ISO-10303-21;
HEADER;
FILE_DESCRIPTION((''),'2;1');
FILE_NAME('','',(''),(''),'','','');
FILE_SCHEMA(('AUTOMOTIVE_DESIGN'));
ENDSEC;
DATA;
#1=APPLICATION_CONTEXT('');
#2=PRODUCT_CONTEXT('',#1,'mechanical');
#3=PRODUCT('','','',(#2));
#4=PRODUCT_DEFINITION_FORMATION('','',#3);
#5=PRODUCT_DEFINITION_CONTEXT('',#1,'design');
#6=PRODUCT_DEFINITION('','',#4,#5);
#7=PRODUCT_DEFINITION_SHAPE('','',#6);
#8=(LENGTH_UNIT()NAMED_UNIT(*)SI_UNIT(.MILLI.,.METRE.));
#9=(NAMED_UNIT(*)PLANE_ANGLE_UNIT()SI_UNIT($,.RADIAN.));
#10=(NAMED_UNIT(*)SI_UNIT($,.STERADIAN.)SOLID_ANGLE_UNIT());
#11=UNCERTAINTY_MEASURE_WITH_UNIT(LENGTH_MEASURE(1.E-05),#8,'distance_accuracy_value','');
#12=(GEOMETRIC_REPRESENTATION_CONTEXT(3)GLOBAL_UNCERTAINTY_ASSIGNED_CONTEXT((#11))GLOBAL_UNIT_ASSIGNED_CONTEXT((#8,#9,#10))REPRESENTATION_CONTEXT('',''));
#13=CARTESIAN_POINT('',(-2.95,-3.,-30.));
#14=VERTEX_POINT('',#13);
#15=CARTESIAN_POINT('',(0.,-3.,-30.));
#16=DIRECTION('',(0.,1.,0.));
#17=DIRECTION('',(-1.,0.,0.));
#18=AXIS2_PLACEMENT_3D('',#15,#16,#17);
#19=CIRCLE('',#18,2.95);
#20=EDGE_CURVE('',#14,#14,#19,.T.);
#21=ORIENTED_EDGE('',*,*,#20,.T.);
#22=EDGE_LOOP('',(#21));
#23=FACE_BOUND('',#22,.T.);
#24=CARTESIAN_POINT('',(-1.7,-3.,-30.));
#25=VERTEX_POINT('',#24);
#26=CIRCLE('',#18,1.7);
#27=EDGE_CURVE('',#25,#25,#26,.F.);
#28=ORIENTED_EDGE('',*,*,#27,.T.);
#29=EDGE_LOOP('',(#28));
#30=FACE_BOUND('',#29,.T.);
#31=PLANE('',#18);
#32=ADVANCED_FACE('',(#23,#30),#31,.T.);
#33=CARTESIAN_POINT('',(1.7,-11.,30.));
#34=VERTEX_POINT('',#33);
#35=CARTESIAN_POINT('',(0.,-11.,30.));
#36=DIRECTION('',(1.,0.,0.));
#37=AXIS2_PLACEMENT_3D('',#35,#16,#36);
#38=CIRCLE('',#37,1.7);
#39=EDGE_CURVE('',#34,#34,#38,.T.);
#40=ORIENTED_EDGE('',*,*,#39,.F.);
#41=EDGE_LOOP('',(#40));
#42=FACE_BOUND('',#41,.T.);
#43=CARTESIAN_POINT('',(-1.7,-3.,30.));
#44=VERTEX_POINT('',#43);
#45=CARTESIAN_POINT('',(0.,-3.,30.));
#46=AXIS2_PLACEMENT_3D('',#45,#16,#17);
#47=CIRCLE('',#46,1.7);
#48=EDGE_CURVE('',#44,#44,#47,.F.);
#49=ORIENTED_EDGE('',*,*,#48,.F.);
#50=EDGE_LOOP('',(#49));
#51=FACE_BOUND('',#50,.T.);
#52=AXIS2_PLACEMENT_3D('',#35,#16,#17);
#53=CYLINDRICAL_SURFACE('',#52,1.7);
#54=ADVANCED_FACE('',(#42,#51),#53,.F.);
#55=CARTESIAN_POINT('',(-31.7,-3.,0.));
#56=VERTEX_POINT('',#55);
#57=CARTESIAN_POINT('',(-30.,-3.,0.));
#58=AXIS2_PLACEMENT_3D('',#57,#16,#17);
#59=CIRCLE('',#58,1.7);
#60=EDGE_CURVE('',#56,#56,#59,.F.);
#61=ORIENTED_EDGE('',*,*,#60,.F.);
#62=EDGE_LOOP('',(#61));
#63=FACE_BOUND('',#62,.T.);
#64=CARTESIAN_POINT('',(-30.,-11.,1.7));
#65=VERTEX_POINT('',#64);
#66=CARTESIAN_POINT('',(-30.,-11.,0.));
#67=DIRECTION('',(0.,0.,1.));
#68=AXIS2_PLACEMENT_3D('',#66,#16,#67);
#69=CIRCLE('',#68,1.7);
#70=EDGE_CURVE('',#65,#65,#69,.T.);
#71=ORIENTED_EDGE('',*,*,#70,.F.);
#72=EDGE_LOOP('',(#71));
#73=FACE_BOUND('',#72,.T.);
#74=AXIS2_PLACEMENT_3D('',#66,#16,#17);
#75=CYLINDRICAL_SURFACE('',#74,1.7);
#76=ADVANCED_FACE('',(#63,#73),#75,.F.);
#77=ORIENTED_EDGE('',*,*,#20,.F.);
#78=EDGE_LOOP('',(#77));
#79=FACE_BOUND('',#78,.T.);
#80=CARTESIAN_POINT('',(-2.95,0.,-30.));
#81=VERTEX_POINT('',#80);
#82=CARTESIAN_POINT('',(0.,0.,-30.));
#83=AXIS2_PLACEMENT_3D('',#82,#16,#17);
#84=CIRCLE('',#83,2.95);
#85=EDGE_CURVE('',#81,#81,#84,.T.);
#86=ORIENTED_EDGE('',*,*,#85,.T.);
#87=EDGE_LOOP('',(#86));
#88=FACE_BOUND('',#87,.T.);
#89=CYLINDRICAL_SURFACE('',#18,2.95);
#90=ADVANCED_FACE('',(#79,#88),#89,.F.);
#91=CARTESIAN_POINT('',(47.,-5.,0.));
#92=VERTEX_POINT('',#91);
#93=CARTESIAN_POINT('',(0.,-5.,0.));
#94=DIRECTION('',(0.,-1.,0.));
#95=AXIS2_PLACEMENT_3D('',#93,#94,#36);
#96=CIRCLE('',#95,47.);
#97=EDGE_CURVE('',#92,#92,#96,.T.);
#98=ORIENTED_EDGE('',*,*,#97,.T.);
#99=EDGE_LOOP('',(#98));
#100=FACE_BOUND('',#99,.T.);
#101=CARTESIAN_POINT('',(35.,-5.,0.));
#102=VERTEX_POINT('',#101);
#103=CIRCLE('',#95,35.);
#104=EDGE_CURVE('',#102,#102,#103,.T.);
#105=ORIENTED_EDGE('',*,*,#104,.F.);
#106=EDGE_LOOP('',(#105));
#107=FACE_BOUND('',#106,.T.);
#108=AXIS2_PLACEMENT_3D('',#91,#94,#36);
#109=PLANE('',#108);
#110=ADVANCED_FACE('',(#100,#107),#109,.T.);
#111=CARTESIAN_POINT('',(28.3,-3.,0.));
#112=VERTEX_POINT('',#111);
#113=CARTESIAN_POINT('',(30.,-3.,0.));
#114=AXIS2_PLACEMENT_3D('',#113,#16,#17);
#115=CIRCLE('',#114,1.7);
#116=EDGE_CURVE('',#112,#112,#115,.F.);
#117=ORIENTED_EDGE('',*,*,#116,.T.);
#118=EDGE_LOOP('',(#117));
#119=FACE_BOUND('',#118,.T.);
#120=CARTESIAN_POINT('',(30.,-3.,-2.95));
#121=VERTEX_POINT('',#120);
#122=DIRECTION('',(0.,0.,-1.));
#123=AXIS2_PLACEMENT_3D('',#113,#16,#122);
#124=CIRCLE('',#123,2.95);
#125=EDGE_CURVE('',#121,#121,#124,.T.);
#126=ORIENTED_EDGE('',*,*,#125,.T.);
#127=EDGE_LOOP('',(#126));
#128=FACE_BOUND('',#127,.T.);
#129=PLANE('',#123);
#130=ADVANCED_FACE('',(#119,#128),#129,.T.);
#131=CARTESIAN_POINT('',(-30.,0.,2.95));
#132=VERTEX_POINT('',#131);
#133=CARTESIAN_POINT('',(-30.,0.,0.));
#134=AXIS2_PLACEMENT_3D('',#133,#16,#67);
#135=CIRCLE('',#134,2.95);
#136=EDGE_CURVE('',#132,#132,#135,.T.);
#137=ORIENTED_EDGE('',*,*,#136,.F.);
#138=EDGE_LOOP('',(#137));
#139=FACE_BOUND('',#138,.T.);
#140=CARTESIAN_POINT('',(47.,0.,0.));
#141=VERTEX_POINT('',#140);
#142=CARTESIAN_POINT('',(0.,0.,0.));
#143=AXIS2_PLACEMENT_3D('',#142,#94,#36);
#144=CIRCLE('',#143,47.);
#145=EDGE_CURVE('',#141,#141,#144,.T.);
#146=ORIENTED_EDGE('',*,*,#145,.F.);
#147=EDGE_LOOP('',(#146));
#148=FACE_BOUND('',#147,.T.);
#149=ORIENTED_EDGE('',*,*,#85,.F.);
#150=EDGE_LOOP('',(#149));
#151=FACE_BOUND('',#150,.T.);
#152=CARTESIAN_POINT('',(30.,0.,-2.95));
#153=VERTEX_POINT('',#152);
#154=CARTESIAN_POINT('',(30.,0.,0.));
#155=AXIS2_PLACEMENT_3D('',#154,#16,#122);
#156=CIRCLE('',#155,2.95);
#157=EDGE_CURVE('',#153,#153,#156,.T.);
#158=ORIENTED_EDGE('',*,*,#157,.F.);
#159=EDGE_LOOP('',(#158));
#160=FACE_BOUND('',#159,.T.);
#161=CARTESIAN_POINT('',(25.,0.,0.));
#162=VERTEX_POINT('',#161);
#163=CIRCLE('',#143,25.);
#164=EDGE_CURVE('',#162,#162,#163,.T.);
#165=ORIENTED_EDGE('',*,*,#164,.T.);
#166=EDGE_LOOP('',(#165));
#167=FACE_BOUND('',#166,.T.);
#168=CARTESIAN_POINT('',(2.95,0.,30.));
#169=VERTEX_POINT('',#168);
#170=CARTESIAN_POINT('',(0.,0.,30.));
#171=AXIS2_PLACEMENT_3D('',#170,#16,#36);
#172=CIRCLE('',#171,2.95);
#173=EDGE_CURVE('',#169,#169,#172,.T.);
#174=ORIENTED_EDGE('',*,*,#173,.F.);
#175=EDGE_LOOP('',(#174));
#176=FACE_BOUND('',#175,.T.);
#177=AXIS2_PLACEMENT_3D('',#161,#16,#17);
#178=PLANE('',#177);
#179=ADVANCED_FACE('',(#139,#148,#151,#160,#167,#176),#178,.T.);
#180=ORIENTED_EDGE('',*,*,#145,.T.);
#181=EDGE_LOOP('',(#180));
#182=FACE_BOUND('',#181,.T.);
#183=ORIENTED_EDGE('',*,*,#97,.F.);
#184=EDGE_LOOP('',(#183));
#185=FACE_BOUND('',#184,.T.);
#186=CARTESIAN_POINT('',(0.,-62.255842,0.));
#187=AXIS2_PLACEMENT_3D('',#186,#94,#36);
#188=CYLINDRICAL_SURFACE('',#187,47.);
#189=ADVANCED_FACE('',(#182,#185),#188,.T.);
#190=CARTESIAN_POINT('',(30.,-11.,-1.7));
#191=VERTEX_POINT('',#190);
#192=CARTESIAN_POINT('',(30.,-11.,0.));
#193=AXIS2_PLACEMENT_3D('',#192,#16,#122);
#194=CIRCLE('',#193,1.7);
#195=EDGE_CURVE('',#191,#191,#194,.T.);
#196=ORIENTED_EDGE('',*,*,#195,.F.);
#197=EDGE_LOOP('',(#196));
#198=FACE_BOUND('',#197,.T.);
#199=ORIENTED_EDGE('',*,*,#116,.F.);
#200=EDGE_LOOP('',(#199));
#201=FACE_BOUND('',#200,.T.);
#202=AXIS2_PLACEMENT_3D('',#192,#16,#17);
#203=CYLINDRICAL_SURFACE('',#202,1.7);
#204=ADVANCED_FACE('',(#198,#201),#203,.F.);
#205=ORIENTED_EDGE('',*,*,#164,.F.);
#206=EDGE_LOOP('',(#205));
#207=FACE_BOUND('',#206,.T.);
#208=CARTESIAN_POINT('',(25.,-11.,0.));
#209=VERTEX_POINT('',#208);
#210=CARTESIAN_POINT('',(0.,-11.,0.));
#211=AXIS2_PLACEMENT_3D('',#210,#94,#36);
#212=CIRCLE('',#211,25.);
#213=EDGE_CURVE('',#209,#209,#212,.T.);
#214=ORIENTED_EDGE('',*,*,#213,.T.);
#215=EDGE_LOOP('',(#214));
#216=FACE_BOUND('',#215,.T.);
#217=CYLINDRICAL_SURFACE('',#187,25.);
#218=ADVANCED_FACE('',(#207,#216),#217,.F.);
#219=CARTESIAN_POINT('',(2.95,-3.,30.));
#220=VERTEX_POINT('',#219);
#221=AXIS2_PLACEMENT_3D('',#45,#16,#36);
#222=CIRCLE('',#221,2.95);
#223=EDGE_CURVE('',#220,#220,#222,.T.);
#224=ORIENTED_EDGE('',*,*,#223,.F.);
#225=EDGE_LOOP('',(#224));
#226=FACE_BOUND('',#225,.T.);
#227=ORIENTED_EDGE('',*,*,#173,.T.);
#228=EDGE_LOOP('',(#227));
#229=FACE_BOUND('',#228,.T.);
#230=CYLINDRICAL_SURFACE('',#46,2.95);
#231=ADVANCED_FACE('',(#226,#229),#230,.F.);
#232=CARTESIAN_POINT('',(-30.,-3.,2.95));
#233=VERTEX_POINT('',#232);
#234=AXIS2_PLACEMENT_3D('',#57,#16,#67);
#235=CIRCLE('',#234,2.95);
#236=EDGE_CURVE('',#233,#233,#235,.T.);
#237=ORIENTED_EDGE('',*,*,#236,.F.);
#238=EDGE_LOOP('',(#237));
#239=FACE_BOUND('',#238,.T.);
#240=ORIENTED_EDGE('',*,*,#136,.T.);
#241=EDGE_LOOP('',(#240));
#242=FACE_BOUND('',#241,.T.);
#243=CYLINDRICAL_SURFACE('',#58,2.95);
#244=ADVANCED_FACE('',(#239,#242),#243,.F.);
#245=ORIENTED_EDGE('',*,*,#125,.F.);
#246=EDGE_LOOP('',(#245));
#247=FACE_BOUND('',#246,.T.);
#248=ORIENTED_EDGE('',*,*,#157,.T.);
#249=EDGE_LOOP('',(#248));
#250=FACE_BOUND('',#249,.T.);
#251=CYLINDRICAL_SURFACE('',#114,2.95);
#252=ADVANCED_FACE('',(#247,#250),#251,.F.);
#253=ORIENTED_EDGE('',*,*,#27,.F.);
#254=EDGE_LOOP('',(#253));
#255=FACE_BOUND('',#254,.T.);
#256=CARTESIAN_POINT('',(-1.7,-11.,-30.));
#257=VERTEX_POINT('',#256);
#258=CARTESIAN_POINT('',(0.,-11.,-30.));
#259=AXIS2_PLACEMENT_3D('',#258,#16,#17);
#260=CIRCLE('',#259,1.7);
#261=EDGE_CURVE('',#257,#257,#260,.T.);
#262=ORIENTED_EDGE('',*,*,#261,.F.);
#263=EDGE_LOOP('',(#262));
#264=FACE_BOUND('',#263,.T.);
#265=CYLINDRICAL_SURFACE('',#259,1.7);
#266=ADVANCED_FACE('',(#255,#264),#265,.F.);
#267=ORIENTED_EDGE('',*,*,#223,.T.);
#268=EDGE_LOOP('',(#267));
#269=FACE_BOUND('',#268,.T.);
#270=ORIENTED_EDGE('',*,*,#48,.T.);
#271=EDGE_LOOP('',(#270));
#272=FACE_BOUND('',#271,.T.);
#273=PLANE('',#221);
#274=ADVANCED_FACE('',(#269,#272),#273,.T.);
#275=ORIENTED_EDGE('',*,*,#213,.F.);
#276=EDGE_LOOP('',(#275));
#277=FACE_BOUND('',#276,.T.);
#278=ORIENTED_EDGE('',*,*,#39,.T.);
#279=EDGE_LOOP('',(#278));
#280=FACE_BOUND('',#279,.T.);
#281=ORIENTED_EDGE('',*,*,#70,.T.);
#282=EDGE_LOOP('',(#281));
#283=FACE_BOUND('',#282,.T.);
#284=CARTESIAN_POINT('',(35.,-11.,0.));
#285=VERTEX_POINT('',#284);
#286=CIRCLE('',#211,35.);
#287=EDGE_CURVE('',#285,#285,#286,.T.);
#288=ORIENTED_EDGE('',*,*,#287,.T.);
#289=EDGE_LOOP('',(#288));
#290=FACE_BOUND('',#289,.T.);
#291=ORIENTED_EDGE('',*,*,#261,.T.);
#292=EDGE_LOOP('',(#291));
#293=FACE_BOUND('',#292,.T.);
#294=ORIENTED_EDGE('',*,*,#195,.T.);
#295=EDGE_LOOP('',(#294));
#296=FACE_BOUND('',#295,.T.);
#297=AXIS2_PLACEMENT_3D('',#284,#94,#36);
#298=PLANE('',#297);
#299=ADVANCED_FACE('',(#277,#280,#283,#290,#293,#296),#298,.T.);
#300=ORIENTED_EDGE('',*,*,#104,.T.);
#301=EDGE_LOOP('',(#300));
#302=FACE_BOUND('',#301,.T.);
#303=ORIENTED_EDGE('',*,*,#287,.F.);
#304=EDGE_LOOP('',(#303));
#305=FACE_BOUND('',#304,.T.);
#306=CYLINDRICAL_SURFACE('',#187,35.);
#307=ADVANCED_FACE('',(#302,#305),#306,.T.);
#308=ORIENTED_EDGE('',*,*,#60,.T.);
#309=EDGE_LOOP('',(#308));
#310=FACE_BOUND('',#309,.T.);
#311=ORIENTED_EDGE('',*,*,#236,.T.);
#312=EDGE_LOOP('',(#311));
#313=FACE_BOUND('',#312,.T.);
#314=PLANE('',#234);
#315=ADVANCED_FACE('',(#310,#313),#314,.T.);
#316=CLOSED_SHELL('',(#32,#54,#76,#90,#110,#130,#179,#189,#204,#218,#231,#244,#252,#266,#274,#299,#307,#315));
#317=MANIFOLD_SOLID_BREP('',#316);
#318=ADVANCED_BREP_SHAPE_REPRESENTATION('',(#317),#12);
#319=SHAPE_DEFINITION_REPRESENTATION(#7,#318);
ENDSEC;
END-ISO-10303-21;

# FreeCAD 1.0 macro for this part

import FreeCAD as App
import Part
import Sketcher

V = App.Vector

doc = App.newDocument("Part")
body = doc.addObject("PartDesign::Body", "Body")

# Sketch on XY plane
sketch1 = doc.addObject("Sketcher::SketchObject", "Sketch")
body.addObject(sketch1)
sketch1.AttachmentSupport = (doc.XY_Plane, [""])
sketch1.MapMode = "FlatFace"
sketch1.addGeometry([
    Part.LineSegment(V(47, 0, 0), V(25, 0, 0)),  # 0
    Part.LineSegment(V(25, 0, 0), V(25, -11, 0)),  # 1
    Part.LineSegment(V(25, -11, 0), V(35, -11, 0)),  # 2
    Part.LineSegment(V(35, -11, 0), V(35, -5, 0)),  # 3
    Part.LineSegment(V(35, -5, 0), V(47, -5, 0)),  # 4
    Part.LineSegment(V(47, -5, 0), V(47, 0, 0)),  # 5
], False)
sketch1.addConstraint([
    Sketcher.Constraint("Coincident", 0, 2, 1, 1),
    Sketcher.Constraint("Coincident", 1, 2, 2, 1),
    Sketcher.Constraint("Coincident", 2, 2, 3, 1),
    Sketcher.Constraint("Coincident", 3, 2, 4, 1),
    Sketcher.Constraint("Coincident", 4, 2, 5, 1),
    Sketcher.Constraint("Coincident", 5, 2, 0, 1),
    Sketcher.Constraint("Horizontal", 0),
    Sketcher.Constraint("Vertical", 1),
    Sketcher.Constraint("Horizontal", 2),
    Sketcher.Constraint("Vertical", 3),
    Sketcher.Constraint("Horizontal", 4),
    Sketcher.Constraint("Vertical", 5),
    Sketcher.Constraint("PointOnObject", 0, 2, -1),
    Sketcher.Constraint("DistanceX", 0, 2, 0, 1, 22.0),
    Sketcher.Constraint("DistanceX", 2, 1, 2, 2, 10.0),
    Sketcher.Constraint("DistanceY", 1, 2, 1, 1, 11.0),
    Sketcher.Constraint("DistanceY", 3, 1, 3, 2, 6.0),
    Sketcher.Constraint("DistanceX", -1, 1, 0, 2, 25.0),
])
revolution = doc.addObject("PartDesign::Revolution", "Revolution")
body.addObject(revolution)
revolution.Profile = sketch1
revolution.ReferenceAxis = (sketch1, ["V_Axis"])
revolution.Angle = 360

# Sketch on XZ plane
sketch2 = doc.addObject("Sketcher::SketchObject", "Sketch001")
body.addObject(sketch2)
sketch2.AttachmentSupport = (doc.XZ_Plane, [""])
sketch2.MapMode = "FlatFace"
sketch2.addGeometry(Part.Circle(V(0, -30, 0), V(0, 0, 1), 1.7), False)
sketch2.addConstraint([
    Sketcher.Constraint("PointOnObject", 0, 3, -2),
    Sketcher.Constraint("Diameter", 0, 3.4),
    Sketcher.Constraint("DistanceY", 0, 3, -1, 1, 30.0),
])
pocket1 = doc.addObject("PartDesign::Pocket", "Pocket")
body.addObject(pocket1)
pocket1.Profile = sketch2
pocket1.Length = 136.744202
pocket1.Midplane = True
doc.recompute()

polarpattern = doc.addObject("PartDesign::PolarPattern", "PolarPattern")
body.addObject(polarpattern)
polarpattern.Originals = [pocket1]
polarpattern.Axis = (doc.Y_Axis, [""])
polarpattern.Angle = 360
polarpattern.Occurrences = 4
body.Tip = polarpattern

# Sketch on XZ plane
sketch3 = doc.addObject("Sketcher::SketchObject", "Sketch002")
body.addObject(sketch3)
sketch3.AttachmentSupport = (doc.XZ_Plane, [""])
sketch3.MapMode = "FlatFace"
sketch3.addGeometry(Part.Circle(V(0, -30, 0), V(0, 0, 1), 2.95), False)
sketch3.addConstraint([
    Sketcher.Constraint("PointOnObject", 0, 3, -2),
    Sketcher.Constraint("Diameter", 0, 5.9),
    Sketcher.Constraint("DistanceY", 0, 3, -1, 1, 30.0),
])
pocket2 = doc.addObject("PartDesign::Pocket", "Pocket001")
body.addObject(pocket2)
pocket2.Profile = sketch3
pocket2.Length = 3
pocket2.Reversed = True
doc.recompute()

polarpattern2 = doc.addObject("PartDesign::PolarPattern", "PolarPattern001")
body.addObject(polarpattern2)
polarpattern2.Originals = [pocket2]
polarpattern2.Axis = (doc.Y_Axis, [""])
polarpattern2.Angle = 360
polarpattern2.Occurrences = 4
body.Tip = polarpattern2

doc.recompute()
